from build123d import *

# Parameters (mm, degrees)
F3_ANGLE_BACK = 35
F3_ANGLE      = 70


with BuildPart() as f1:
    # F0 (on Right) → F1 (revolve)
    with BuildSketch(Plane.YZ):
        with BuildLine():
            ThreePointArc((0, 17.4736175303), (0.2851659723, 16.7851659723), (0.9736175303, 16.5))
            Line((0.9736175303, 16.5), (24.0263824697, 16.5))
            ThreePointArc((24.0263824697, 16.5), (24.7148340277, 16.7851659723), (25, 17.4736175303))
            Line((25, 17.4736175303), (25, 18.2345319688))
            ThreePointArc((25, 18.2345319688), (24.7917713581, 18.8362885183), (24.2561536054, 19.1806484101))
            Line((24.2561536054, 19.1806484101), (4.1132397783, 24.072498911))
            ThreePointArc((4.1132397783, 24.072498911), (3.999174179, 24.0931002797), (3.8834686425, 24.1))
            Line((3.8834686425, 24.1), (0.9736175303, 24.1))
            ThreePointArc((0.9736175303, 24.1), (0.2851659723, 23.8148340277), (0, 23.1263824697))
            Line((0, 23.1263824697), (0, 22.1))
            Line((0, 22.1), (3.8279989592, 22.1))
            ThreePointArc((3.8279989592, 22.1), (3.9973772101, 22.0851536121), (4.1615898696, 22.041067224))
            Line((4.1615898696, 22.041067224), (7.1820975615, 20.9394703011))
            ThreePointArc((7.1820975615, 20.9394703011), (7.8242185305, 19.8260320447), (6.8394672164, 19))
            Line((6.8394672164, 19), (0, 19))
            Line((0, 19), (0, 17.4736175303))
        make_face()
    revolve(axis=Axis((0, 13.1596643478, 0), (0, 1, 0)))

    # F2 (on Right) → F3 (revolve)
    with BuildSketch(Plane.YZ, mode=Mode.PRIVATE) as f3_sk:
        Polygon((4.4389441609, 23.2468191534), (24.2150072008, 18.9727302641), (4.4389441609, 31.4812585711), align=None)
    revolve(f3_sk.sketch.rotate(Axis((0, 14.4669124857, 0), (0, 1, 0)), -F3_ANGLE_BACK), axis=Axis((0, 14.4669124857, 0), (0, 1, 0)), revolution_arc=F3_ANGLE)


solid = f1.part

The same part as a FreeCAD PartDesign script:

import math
import FreeCAD as App
import Part
import Sketcher

doc = App.newDocument("Part")
body = doc.addObject("PartDesign::Body", "Body")

# Sketch on YZ plane
sketch1 = body.newObject("Sketcher::SketchObject", "Sketch")
sketch1.AttachmentSupport = (doc.getObject("YZ_Plane"), [""])
sketch1.MapMode = "FlatFace"
sketch1.addGeometry(Part.ArcOfCircle(Part.Circle(App.Vector(0.97, 17.47, 0), App.Vector(0, 0, 1), 0.97), math.radians(180), math.radians(270)), False)
sketch1.addGeometry(Part.LineSegment(App.Vector(0.97, 16.5, 0), App.Vector(24.03, 16.5, 0)), False)
sketch1.addGeometry(Part.ArcOfCircle(Part.Circle(App.Vector(24.03, 17.47, 0), App.Vector(0, 0, 1), 0.97), math.radians(-90), math.radians(0)), False)
sketch1.addGeometry(Part.LineSegment(App.Vector(25, 17.47, 0), App.Vector(25, 18.23, 0)), False)
sketch1.addGeometry(Part.ArcOfCircle(Part.Circle(App.Vector(24.03, 18.23, 0), App.Vector(0, 0, 1), 0.97), math.radians(0), math.radians(76)), False)
sketch1.addGeometry(Part.LineSegment(App.Vector(24.26, 19.18, 0), App.Vector(4.11, 24.07, 0)), False)
sketch1.addGeometry(Part.ArcOfCircle(Part.Circle(App.Vector(3.88, 23.13, 0), App.Vector(0, 0, 1), 0.97), math.radians(76.35), math.radians(90)), False)
sketch1.addGeometry(Part.LineSegment(App.Vector(3.88, 24.1, 0), App.Vector(0.97, 24.1, 0)), False)
sketch1.addGeometry(Part.ArcOfCircle(Part.Circle(App.Vector(0.97, 23.13, 0), App.Vector(0, 0, 1), 0.97), math.radians(90), math.radians(180)), False)
sketch1.addGeometry(Part.LineSegment(App.Vector(0, 23.13, 0), App.Vector(0, 22.1, 0)), False)
sketch1.addGeometry(Part.LineSegment(App.Vector(0, 22.1, 0), App.Vector(3.83, 22.1, 0)), False)
sketch1.addGeometry(Part.ArcOfCircle(Part.Circle(App.Vector(3.83, 21.13, 0), App.Vector(0, 0, 1), 0.97), math.radians(70), math.radians(90)), False)
sketch1.addGeometry(Part.LineSegment(App.Vector(4.16, 22.04, 0), App.Vector(7.18, 20.94, 0)), False)
sketch1.addGeometry(Part.ArcOfCircle(Part.Circle(App.Vector(6.84, 20, 0), App.Vector(0, 0, 1), 1), math.radians(-90), math.radians(70)), False)
sketch1.addGeometry(Part.LineSegment(App.Vector(6.84, 19, 0), App.Vector(0, 19, 0)), False)
sketch1.addGeometry(Part.LineSegment(App.Vector(0, 19, 0), App.Vector(0, 17.47, 0)), False)
sketch1.addConstraint(Sketcher.Constraint("Tangent", 0, 2, 1, 1))
sketch1.addConstraint(Sketcher.Constraint("Tangent", 1, 2, 2, 1))
sketch1.addConstraint(Sketcher.Constraint("Tangent", 2, 2, 3, 1))
sketch1.addConstraint(Sketcher.Constraint("Tangent", 3, 2, 4, 1))
sketch1.addConstraint(Sketcher.Constraint("Tangent", 4, 2, 5, 1))
sketch1.addConstraint(Sketcher.Constraint("Tangent", 5, 2, 6, 1))
sketch1.addConstraint(Sketcher.Constraint("Tangent", 6, 2, 7, 1))
sketch1.addConstraint(Sketcher.Constraint("Tangent", 7, 2, 8, 1))
sketch1.addConstraint(Sketcher.Constraint("Tangent", 8, 2, 9, 1))
sketch1.addConstraint(Sketcher.Constraint("Coincident", 9, 2, 10, 1))
sketch1.addConstraint(Sketcher.Constraint("Tangent", 10, 2, 11, 2))
sketch1.addConstraint(Sketcher.Constraint("Tangent", 11, 1, 12, 1))
sketch1.addConstraint(Sketcher.Constraint("Tangent", 12, 2, 13, 2))
sketch1.addConstraint(Sketcher.Constraint("Tangent", 13, 1, 14, 1))
sketch1.addConstraint(Sketcher.Constraint("Coincident", 14, 2, 15, 1))
sketch1.addConstraint(Sketcher.Constraint("Tangent", 15, 2, 0, 1))
sketch1.addConstraint(Sketcher.Constraint("Horizontal", 1))
sketch1.addConstraint(Sketcher.Constraint("Vertical", 3))
sketch1.addConstraint(Sketcher.Constraint("Horizontal", 7))
sketch1.addConstraint(Sketcher.Constraint("Vertical", 9))
sketch1.addConstraint(Sketcher.Constraint("Horizontal", 10))
sketch1.addConstraint(Sketcher.Constraint("Horizontal", 14))
sketch1.addConstraint(Sketcher.Constraint("Vertical", 15))
sketch1.addConstraint(Sketcher.Constraint("Equal", 0, 2))
sketch1.addConstraint(Sketcher.Constraint("Equal", 2, 4))
sketch1.addConstraint(Sketcher.Constraint("Equal", 4, 6))
sketch1.addConstraint(Sketcher.Constraint("Equal", 6, 8))
sketch1.addConstraint(Sketcher.Constraint("Equal", 8, 11))
sketch1.addConstraint(Sketcher.Constraint("PointOnObject", 8, 2, -2))
sketch1.addConstraint(Sketcher.Constraint("PointOnObject", 14, 2, -2))
sketch1.addConstraint(Sketcher.Constraint("Radius", 13, 1.0))
sketch1.addConstraint(Sketcher.Constraint("DistanceY", -1, 1, 13, 3, 20.0))
sketch1.addConstraint(Sketcher.Constraint("DistanceX", -1, 1, 2, 2, 25.0))
sketch1.addConstraint(Sketcher.Constraint("DistanceY", 11, 3, 6, 3, 2.0))
sketch1.addConstraint(Sketcher.Constraint("DistanceY", -1, 1, 0, 2, 16.5))
sketch1.addConstraint(Sketcher.Constraint("DistanceY", -1, 1, 6, 2, 24.1))
sketch1.addConstraint(Sketcher.Constraint("DistanceX", 10, 1, 10, 2, 3.827999))
sketch1.addConstraint(Sketcher.Constraint("Radius", 0, 0.973618))
sketch1.addConstraint(Sketcher.Constraint("DistanceX", 6, 3, 13, 3, 2.955999))
sketch1.addConstraint(Sketcher.Constraint("DistanceX", 7, 2, 7, 1, 2.909851))
sketch1.addConstraint(Sketcher.Constraint("DistanceY", -1, 1, 5, 2, 24.072499))
revolution = body.newObject("PartDesign::Revolution", "Revolution")
revolution.Profile = sketch1
revolution.ReferenceAxis = (sketch1, ["H_Axis"])
revolution.Angle = 360

# Sketch on an angled plane
sketch2 = body.newObject("Sketcher::SketchObject", "Sketch001")
sketch2.Placement = App.Placement(App.Vector(0, 0, 0), App.Rotation(App.Vector(0, 1, 0), App.Vector(-0.573576436, 0, 0.819152044), App.Vector(0.819152044, 0, 0.573576436), "ZXY"))
sketch2.addGeometry(Part.LineSegment(App.Vector(4, 23, 0), App.Vector(24, 19, 0)), False)
sketch2.addGeometry(Part.LineSegment(App.Vector(24, 19, 0), App.Vector(4, 31, 0)), False)
sketch2.addGeometry(Part.LineSegment(App.Vector(4, 31, 0), App.Vector(4, 23, 0)), False)
sketch2.addConstraint(Sketcher.Constraint("Coincident", 0, 2, 1, 1))
sketch2.addConstraint(Sketcher.Constraint("Coincident", 1, 2, 2, 1))
sketch2.addConstraint(Sketcher.Constraint("Coincident", 2, 2, 0, 1))
sketch2.addConstraint(Sketcher.Constraint("Vertical", 2))
sketch2.addConstraint(Sketcher.Constraint("DistanceY", 2, 2, 2, 1, 8.234439))
sketch2.addConstraint(Sketcher.Constraint("Distance", 0, 20.232659))
sketch2.addConstraint(Sketcher.Constraint("DistanceY", -1, 1, 0, 2, 18.97273))
sketch2.addConstraint(Sketcher.Constraint("DistanceY", -1, 1, 1, 2, 31.481259))
sketch2.addConstraint(Sketcher.Constraint("DistanceX", -1, 1, 0, 2, 24.215007))
revolution2 = body.newObject("PartDesign::Revolution", "Revolution001")
revolution2.Profile = sketch2
revolution2.ReferenceAxis = (sketch2, ["H_Axis"])
revolution2.Angle = 70

doc.recompute()
